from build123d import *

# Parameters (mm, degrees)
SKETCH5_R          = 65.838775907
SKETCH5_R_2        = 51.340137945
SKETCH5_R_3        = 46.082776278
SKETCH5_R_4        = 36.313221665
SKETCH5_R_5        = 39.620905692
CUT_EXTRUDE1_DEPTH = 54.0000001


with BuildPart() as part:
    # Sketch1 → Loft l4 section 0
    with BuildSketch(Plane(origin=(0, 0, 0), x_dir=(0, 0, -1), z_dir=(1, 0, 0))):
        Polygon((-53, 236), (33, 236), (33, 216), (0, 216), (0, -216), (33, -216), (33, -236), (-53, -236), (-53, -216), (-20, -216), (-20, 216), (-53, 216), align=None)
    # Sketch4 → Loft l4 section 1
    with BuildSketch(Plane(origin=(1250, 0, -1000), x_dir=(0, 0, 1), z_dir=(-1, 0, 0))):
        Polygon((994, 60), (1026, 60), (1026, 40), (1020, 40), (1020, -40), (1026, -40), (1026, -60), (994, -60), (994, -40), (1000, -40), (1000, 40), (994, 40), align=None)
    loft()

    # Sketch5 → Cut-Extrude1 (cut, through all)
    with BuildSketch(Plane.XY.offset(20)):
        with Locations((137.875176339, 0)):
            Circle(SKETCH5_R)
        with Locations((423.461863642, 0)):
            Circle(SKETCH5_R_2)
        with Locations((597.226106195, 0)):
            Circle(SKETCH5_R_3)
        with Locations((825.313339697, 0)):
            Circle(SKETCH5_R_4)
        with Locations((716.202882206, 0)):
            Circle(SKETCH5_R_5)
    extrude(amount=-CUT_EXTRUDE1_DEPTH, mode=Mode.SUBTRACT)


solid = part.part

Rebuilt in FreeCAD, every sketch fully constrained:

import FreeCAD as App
import Part
import Sketcher

V = App.Vector
Q = App.Units.Quantity

doc = App.newDocument("Part")
body = doc.addObject("PartDesign::Body", "Body")

sketch1 = doc.addObject("Sketcher::SketchObject", "Sketch")
body.addObject(sketch1)
sketch1.AttachmentSupport = (doc.YZ_Plane, [""])
sketch1.MapMode = "FlatFace"
sketch1.addGeometry([
    Part.LineSegment(V(236, -33, 0), V(236, 53, 0)),
    Part.LineSegment(V(236, 53, 0), V(216, 53, 0)),
    Part.LineSegment(V(216, 53, 0), V(216, 20, 0)),
    Part.LineSegment(V(216, 20, 0), V(-216, 20, 0)),
    Part.LineSegment(V(-216, 20, 0), V(-216, 53, 0)),
    Part.LineSegment(V(-216, 53, 0), V(-236, 53, 0)),
    Part.LineSegment(V(-236, 53, 0), V(-236, -33, 0)),
    Part.LineSegment(V(-236, -33, 0), V(-216, -33, 0)),
    Part.LineSegment(V(-216, -33, 0), V(-216, 0, 0)),
    Part.LineSegment(V(-216, 0, 0), V(216, 0, 0)),
    Part.LineSegment(V(216, 0, 0), V(216, -33, 0)),
    Part.LineSegment(V(216, -33, 0), V(236, -33, 0)),
], False)
sketch1.addConstraint([
    Sketcher.Constraint("Coincident", 0, 2, 1, 1),
    Sketcher.Constraint("Coincident", 1, 2, 2, 1),
    Sketcher.Constraint("Coincident", 2, 2, 3, 1),
    Sketcher.Constraint("Coincident", 3, 2, 4, 1),
    Sketcher.Constraint("Coincident", 4, 2, 5, 1),
    Sketcher.Constraint("Coincident", 5, 2, 6, 1),
    Sketcher.Constraint("Coincident", 6, 2, 7, 1),
    Sketcher.Constraint("Coincident", 7, 2, 8, 1),
    Sketcher.Constraint("Coincident", 8, 2, 9, 1),
    Sketcher.Constraint("Coincident", 9, 2, 10, 1),
    Sketcher.Constraint("Coincident", 10, 2, 11, 1),
    Sketcher.Constraint("Coincident", 11, 2, 0, 1),
    Sketcher.Constraint("Vertical", 0),
    Sketcher.Constraint("Horizontal", 1),
    Sketcher.Constraint("Vertical", 2),
    Sketcher.Constraint("Horizontal", 3),
    Sketcher.Constraint("Vertical", 4),
    Sketcher.Constraint("Horizontal", 5),
    Sketcher.Constraint("Vertical", 6),
    Sketcher.Constraint("Horizontal", 7),
    Sketcher.Constraint("Vertical", 8),
    Sketcher.Constraint("Horizontal", 9),
    Sketcher.Constraint("Vertical", 10),
    Sketcher.Constraint("Horizontal", 11),
    Sketcher.Constraint("Symmetric", 8, 2, 9, 2, -1, 1),
    Sketcher.Constraint("Symmetric", 1, 2, 4, 2, -2),
    Sketcher.Constraint("Symmetric", 6, 2, 11, 2, -2),
    Sketcher.Constraint("Vertical", 4, 2, 7, 2),
    Sketcher.Constraint("Equal", 4, 8),
    Sketcher.Constraint("DistanceX", 1, 2, 1, 1, Q("20 mm")),
    Sketcher.Constraint("DistanceX", 3, 2, 3, 1, Q("432 mm")),
    Sketcher.Constraint("DistanceY", 0, 1, 0, 2, Q("86 mm")),
    Sketcher.Constraint("DistanceY", 2, 2, 2, 1, Q("33 mm")),
])

sketch2 = doc.addObject("Sketcher::SketchObject", "Sketch001")
body.addObject(sketch2)
sketch2.AttachmentSupport = (doc.YZ_Plane, [""])
sketch2.MapMode = "FlatFace"
sketch2.AttachmentOffset = App.Placement(V(0, 0, 1250), App.Rotation())
sketch2.addGeometry([
    Part.LineSegment(V(60, 26, 0), V(60, -6, 0)),
    Part.LineSegment(V(60, -6, 0), V(40, -6, 0)),
    Part.LineSegment(V(40, -6, 0), V(40, 0, 0)),
    Part.LineSegment(V(40, 0, 0), V(-40, 0, 0)),
    Part.LineSegment(V(-40, 0, 0), V(-40, -6, 0)),
    Part.LineSegment(V(-40, -6, 0), V(-60, -6, 0)),
    Part.LineSegment(V(-60, -6, 0), V(-60, 26, 0)),
    Part.LineSegment(V(-60, 26, 0), V(-40, 26, 0)),
    Part.LineSegment(V(-40, 26, 0), V(-40, 20, 0)),
    Part.LineSegment(V(-40, 20, 0), V(40, 20, 0)),
    Part.LineSegment(V(40, 20, 0), V(40, 26, 0)),
    Part.LineSegment(V(40, 26, 0), V(60, 26, 0)),
], False)
sketch2.addConstraint([
    Sketcher.Constraint("Coincident", 0, 2, 1, 1),
    Sketcher.Constraint("Coincident", 1, 2, 2, 1),
    Sketcher.Constraint("Coincident", 2, 2, 3, 1),
    Sketcher.Constraint("Coincident", 3, 2, 4, 1),
    Sketcher.Constraint("Coincident", 4, 2, 5, 1),
    Sketcher.Constraint("Coincident", 5, 2, 6, 1),
    Sketcher.Constraint("Coincident", 6, 2, 7, 1),
    Sketcher.Constraint("Coincident", 7, 2, 8, 1),
    Sketcher.Constraint("Coincident", 8, 2, 9, 1),
    Sketcher.Constraint("Coincident", 9, 2, 10, 1),
    Sketcher.Constraint("Coincident", 10, 2, 11, 1),
    Sketcher.Constraint("Coincident", 11, 2, 0, 1),
    Sketcher.Constraint("Vertical", 0),
    Sketcher.Constraint("Horizontal", 1),
    Sketcher.Constraint("Vertical", 2),
    Sketcher.Constraint("Horizontal", 3),
    Sketcher.Constraint("Vertical", 4),
    Sketcher.Constraint("Horizontal", 5),
    Sketcher.Constraint("Vertical", 6),
    Sketcher.Constraint("Horizontal", 7),
    Sketcher.Constraint("Vertical", 8),
    Sketcher.Constraint("Horizontal", 9),
    Sketcher.Constraint("Vertical", 10),
    Sketcher.Constraint("Horizontal", 11),
    Sketcher.Constraint("Symmetric", 2, 2, 3, 2, -1, 1),
    Sketcher.Constraint("Symmetric", 0, 2, 5, 2, -2),
    Sketcher.Constraint("Symmetric", 7, 2, 10, 2, -2),
    Sketcher.Constraint("Vertical", 4, 2, 7, 2),
    Sketcher.Constraint("Equal", 4, 8),
    Sketcher.Constraint("DistanceX", 1, 2, 1, 1, Q("20 mm")),
    Sketcher.Constraint("DistanceX", 3, 2, 3, 1, Q("80 mm")),
    Sketcher.Constraint("DistanceY", 0, 2, 0, 1, Q("32 mm")),
    Sketcher.Constraint("DistanceY", 2, 1, 2, 2, Q("6 mm")),
])

additiveloft = doc.addObject("PartDesign::AdditiveLoft", "AdditiveLoft")
body.addObject(additiveloft)
additiveloft.Profile = sketch1
additiveloft.Sections = [sketch2]

sketch3 = doc.addObject("Sketcher::SketchObject", "Sketch002")
body.addObject(sketch3)
sketch3.AttachmentSupport = (doc.XY_Plane, [""])
sketch3.MapMode = "FlatFace"
sketch3.AttachmentOffset = App.Placement(V(0, 0, 20), App.Rotation())
sketch3.addGeometry([
    Part.Circle(V(137.875176, 0, 0), V(0, 0, 1), 65.838776),
    Part.Circle(V(423.461864, 0, 0), V(0, 0, 1), 51.340138),
    Part.Circle(V(597.226106, 0, 0), V(0, 0, 1), 46.082776),
    Part.Circle(V(825.31334, 0, 0), V(0, 0, 1), 36.313222),
    Part.Circle(V(716.202882, 0, 0), V(0, 0, 1), 39.620906),
], False)
sketch3.addConstraint([
    Sketcher.Constraint("PointOnObject", 0, 3, -1),
    Sketcher.Constraint("PointOnObject", 1, 3, -1),
    Sketcher.Constraint("PointOnObject", 2, 3, -1),
    Sketcher.Constraint("PointOnObject", 3, 3, -1),
    Sketcher.Constraint("PointOnObject", 4, 3, -1),
    Sketcher.Constraint("Diameter", 0, Q("131.677552 mm")),
    Sketcher.Constraint("Diameter", 4, Q("79.241811 mm")),
    Sketcher.Constraint("Diameter", 1, Q("102.680276 mm")),
    Sketcher.Constraint("Diameter", 2, Q("92.165553 mm")),
    Sketcher.Constraint("Diameter", 3, Q("72.626443 mm")),
    Sketcher.Constraint("DistanceX", -1, 1, 3, 3, Q("825.31334 mm")),
    Sketcher.Constraint("DistanceX", 0, 3, 2, 3, Q("459.35093 mm")),
    Sketcher.Constraint("DistanceX", 1, 3, 4, 3, Q("292.741019 mm")),
    Sketcher.Constraint("DistanceX", -1, 1, 0, 3, Q("137.875176 mm")),
    Sketcher.Constraint("DistanceX", -1, 1, 1, 3, Q("423.461864 mm")),
])
pocket1 = doc.addObject("PartDesign::Pocket", "Pocket")
body.addObject(pocket1)
pocket1.Profile = sketch3
pocket1.Type = "ThroughAll"

doc.recompute()
